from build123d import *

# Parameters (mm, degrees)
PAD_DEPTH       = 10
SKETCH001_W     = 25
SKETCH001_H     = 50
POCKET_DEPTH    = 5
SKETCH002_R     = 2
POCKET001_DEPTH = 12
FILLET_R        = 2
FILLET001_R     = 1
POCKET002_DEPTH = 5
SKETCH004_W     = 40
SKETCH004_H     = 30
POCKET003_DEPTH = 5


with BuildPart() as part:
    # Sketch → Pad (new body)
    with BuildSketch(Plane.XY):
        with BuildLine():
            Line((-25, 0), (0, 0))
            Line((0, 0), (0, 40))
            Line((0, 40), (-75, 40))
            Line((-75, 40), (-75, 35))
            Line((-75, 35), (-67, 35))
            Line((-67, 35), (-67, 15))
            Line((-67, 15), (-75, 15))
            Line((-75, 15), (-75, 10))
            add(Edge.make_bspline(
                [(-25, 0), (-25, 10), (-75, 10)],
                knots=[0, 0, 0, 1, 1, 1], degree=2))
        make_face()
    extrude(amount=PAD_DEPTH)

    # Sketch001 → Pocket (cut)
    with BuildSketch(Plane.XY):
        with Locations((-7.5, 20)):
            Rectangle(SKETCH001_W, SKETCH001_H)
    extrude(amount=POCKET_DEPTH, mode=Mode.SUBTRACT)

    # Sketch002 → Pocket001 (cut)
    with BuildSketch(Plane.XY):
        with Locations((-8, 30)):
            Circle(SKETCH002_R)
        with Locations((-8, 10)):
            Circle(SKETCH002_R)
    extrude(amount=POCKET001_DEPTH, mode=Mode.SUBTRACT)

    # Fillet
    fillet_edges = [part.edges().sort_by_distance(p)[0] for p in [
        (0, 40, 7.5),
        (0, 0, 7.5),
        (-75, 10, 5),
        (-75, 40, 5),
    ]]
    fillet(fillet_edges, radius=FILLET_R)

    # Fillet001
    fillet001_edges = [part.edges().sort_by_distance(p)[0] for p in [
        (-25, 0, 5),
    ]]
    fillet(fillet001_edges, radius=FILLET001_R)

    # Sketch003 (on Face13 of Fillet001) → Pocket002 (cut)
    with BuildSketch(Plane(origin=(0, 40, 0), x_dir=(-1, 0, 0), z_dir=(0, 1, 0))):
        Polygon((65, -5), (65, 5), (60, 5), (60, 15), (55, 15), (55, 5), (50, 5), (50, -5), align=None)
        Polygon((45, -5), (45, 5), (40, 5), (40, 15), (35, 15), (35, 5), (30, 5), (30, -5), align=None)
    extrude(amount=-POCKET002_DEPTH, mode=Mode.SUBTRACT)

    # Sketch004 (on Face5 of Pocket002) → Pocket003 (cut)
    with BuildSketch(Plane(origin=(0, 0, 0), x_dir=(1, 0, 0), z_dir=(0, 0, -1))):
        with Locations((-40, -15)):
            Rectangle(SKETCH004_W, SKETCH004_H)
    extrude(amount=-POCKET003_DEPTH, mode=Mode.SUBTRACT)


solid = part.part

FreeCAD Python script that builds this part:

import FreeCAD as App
import Part
import Sketcher

V = App.Vector


def edges_at(feature, points):
    """Names of the edges that pass closest to the given points."""
    edges = feature.Shape.Edges
    near = lambda p: min(range(len(edges)), key=lambda i: edges[i].distToShape(Part.Vertex(*p))[0])
    return sorted({f"Edge{near(p) + 1}" for p in points})


def add_polygon(sketch, points):
    """Adds a closed chain of lines whose ends are joined by coincident constraints."""
    first, n = sketch.GeometryCount, len(points)
    for a, b in zip(points, points[1:] + points[:1]):
        sketch.addGeometry(Part.LineSegment(App.Vector(*a, 0), App.Vector(*b, 0)), False)
    for i in range(n):
        sketch.addConstraint(Sketcher.Constraint("Coincident", first + i, 2, first + (i + 1) % n, 1))

doc = App.newDocument("Part")
body = doc.addObject("PartDesign::Body", "Body")

sketch1 = doc.addObject("Sketcher::SketchObject", "Sketch")
body.addObject(sketch1)
sketch1.AttachmentSupport = (doc.XY_Plane, [""])
sketch1.MapMode = "FlatFace"
sketch1.addGeometry(Part.LineSegment(V(-25, 0, 0), V(0, 0, 0)), False)
sketch1.addGeometry(Part.LineSegment(V(0, 0, 0), V(0, 40, 0)), False)
sketch1.addGeometry(Part.LineSegment(V(0, 40, 0), V(-75, 40, 0)), False)
sketch1.addGeometry(Part.LineSegment(V(-75, 40, 0), V(-75, 35, 0)), False)
sketch1.addGeometry(Part.LineSegment(V(-75, 35, 0), V(-67, 35, 0)), False)
sketch1.addGeometry(Part.LineSegment(V(-67, 35, 0), V(-67, 15, 0)), False)
sketch1.addGeometry(Part.LineSegment(V(-67, 15, 0), V(-75, 15, 0)), False)
sketch1.addGeometry(Part.LineSegment(V(-75, 15, 0), V(-75, 10, 0)), False)
sketch1.addGeometry(Part.BSplineCurve([V(-25, 0, 0), V(-25, 10, 0), V(-75, 10, 0)], [3, 3], [0, 1], False, 2, [1, 1, 1], False), False)
sketch1.addConstraint(Sketcher.Constraint("Block", 8))
sketch1.addConstraint(Sketcher.Constraint("Coincident", 0, 2, 1, 1))
sketch1.addConstraint(Sketcher.Constraint("Coincident", 1, 2, 2, 1))
sketch1.addConstraint(Sketcher.Constraint("Coincident", 2, 2, 3, 1))
sketch1.addConstraint(Sketcher.Constraint("Coincident", 3, 2, 4, 1))
sketch1.addConstraint(Sketcher.Constraint("Coincident", 4, 2, 5, 1))
sketch1.addConstraint(Sketcher.Constraint("Coincident", 5, 2, 6, 1))
sketch1.addConstraint(Sketcher.Constraint("Coincident", 6, 2, 7, 1))
sketch1.addConstraint(Sketcher.Constraint("Coincident", 7, 2, 8, 2))
sketch1.addConstraint(Sketcher.Constraint("Coincident", 8, 1, 0, 1))
sketch1.addConstraint(Sketcher.Constraint("Horizontal", 0))
sketch1.addConstraint(Sketcher.Constraint("Vertical", 1))
sketch1.addConstraint(Sketcher.Constraint("Horizontal", 2))
sketch1.addConstraint(Sketcher.Constraint("Vertical", 3))
sketch1.addConstraint(Sketcher.Constraint("Horizontal", 4))
sketch1.addConstraint(Sketcher.Constraint("Vertical", 5))
sketch1.addConstraint(Sketcher.Constraint("Horizontal", 6))
sketch1.addConstraint(Sketcher.Constraint("Vertical", 7))
sketch1.addConstraint(Sketcher.Constraint("PointOnObject", 1, 2, -2))
sketch1.addConstraint(Sketcher.Constraint("Vertical", 3, 2, 6, 2))
sketch1.addConstraint(Sketcher.Constraint("Equal", 3, 7))
sketch1.addConstraint(Sketcher.Constraint("DistanceX", 4, 1, 4, 2, 8.0))
sketch1.addConstraint(Sketcher.Constraint("DistanceY", 1, 1, 1, 2, 40.0))
sketch1.addConstraint(Sketcher.Constraint("DistanceY", 3, 2, 3, 1, 5.0))
pad1 = doc.addObject("PartDesign::Pad", "Pad")
body.addObject(pad1)
pad1.Profile = sketch1
pad1.Length = 10

sketch2 = doc.addObject("Sketcher::SketchObject", "Sketch001")
body.addObject(sketch2)
sketch2.AttachmentSupport = (doc.XY_Plane, [""])
sketch2.MapMode = "FlatFace"
add_polygon(sketch2, [(-20, 45), (-20, -5), (5, -5), (5, 45)])
sketch2.addConstraint(Sketcher.Constraint("Vertical", 0))
sketch2.addConstraint(Sketcher.Constraint("Horizontal", 1))
sketch2.addConstraint(Sketcher.Constraint("Vertical", 2))
sketch2.addConstraint(Sketcher.Constraint("Horizontal", 3))
sketch2.addConstraint(Sketcher.Constraint("DistanceX", 1, 1, 1, 2, 25.0))
sketch2.addConstraint(Sketcher.Constraint("DistanceY", 0, 2, 0, 1, 50.0))
sketch2.addConstraint(Sketcher.Constraint("DistanceX", 0, 2, -1, 1, 20.0))
sketch2.addConstraint(Sketcher.Constraint("DistanceY", 0, 2, -1, 1, 5.0))
pocket1 = doc.addObject("PartDesign::Pocket", "Pocket")
body.addObject(pocket1)
pocket1.Profile = sketch2
pocket1.Length = 5
pocket1.Reversed = True

sketch3 = doc.addObject("Sketcher::SketchObject", "Sketch002")
body.addObject(sketch3)
sketch3.AttachmentSupport = (doc.XY_Plane, [""])
sketch3.MapMode = "FlatFace"
sketch3.addGeometry(Part.Circle(V(-8, 30, 0), V(0, 0, 1), 2), False)
sketch3.addGeometry(Part.Circle(V(-8, 10, 0), V(0, 0, 1), 2), False)
sketch3.addConstraint(Sketcher.Constraint("Equal", 0, 1))
sketch3.addConstraint(Sketcher.Constraint("Vertical", 0, 3, 1, 3))
sketch3.addConstraint(Sketcher.Constraint("Diameter", 0, 4.0))
sketch3.addConstraint(Sketcher.Constraint("DistanceX", 0, 3, -1, 1, 8.0))
sketch3.addConstraint(Sketcher.Constraint("DistanceY", -1, 1, 0, 3, 30.0))
sketch3.addConstraint(Sketcher.Constraint("DistanceY", -1, 1, 1, 3, 10.0))
pocket2 = doc.addObject("PartDesign::Pocket", "Pocket001")
body.addObject(pocket2)
pocket2.Profile = sketch3
pocket2.Length = 12
pocket2.Reversed = True
doc.recompute()

fillet = doc.addObject("PartDesign::Fillet", "Fillet")
body.addObject(fillet)
fillet.Base = (pocket2, edges_at(pocket2, [
    (0, 40, 7.5),
    (0, 0, 7.5),
    (-75, 10, 5),
    (-75, 40, 5),
]))
fillet.Radius = 2
doc.recompute()

fillet2 = doc.addObject("PartDesign::Fillet", "Fillet001")
body.addObject(fillet2)
fillet2.Base = (fillet, edges_at(fillet, [(-25, 0, 5)]))
fillet2.Radius = 1

sketch4 = doc.addObject("Sketcher::SketchObject", "Sketch003")
body.addObject(sketch4)
sketch4.AttachmentSupport = (doc.XZ_Plane, [""])
sketch4.MapMode = "FlatFace"
sketch4.AttachmentOffset = App.Placement(V(0, 0, -40), App.Rotation())
add_polygon(sketch4, [(-65, -5), (-65, 5), (-60, 5), (-60, 15), (-55, 15), (-55, 5), (-50, 5), (-50, -5)])
add_polygon(sketch4, [(-45, -5), (-45, 5), (-40, 5), (-40, 15), (-35, 15), (-35, 5), (-30, 5), (-30, -5)])
sketch4.addConstraint(Sketcher.Constraint("Vertical", 0))
sketch4.addConstraint(Sketcher.Constraint("Horizontal", 1))
sketch4.addConstraint(Sketcher.Constraint("Vertical", 2))
sketch4.addConstraint(Sketcher.Constraint("Horizontal", 3))
sketch4.addConstraint(Sketcher.Constraint("Vertical", 4))
sketch4.addConstraint(Sketcher.Constraint("Horizontal", 5))
sketch4.addConstraint(Sketcher.Constraint("Vertical", 6))
sketch4.addConstraint(Sketcher.Constraint("Horizontal", 7))
sketch4.addConstraint(Sketcher.Constraint("Vertical", 8))
sketch4.addConstraint(Sketcher.Constraint("Horizontal", 9))
sketch4.addConstraint(Sketcher.Constraint("Vertical", 10))
sketch4.addConstraint(Sketcher.Constraint("Horizontal", 11))
sketch4.addConstraint(Sketcher.Constraint("Vertical", 12))
sketch4.addConstraint(Sketcher.Constraint("Horizontal", 13))
sketch4.addConstraint(Sketcher.Constraint("Vertical", 14))
sketch4.addConstraint(Sketcher.Constraint("Horizontal", 15))
sketch4.addConstraint(Sketcher.Constraint("Horizontal", 1, 2, 4, 2))
sketch4.addConstraint(Sketcher.Constraint("Horizontal", 5, 2, 8, 2))
sketch4.addConstraint(Sketcher.Constraint("Horizontal", 3, 2, 10, 2))
sketch4.addConstraint(Sketcher.Constraint("Horizontal", 9, 2, 12, 2))
sketch4.addConstraint(Sketcher.Constraint("Horizontal", 7, 2, 14, 2))
sketch4.addConstraint(Sketcher.Constraint("Equal", 1, 3))
sketch4.addConstraint(Sketcher.Constraint("Equal", 3, 5))
sketch4.addConstraint(Sketcher.Constraint("Equal", 5, 9))
sketch4.addConstraint(Sketcher.Constraint("Equal", 9, 11))
sketch4.addConstraint(Sketcher.Constraint("Equal", 11, 13))
sketch4.addConstraint(Sketcher.Constraint("Equal", 0, 2))
sketch4.addConstraint(Sketcher.Constraint("DistanceX", 1, 1, 1, 2, 5.0))
sketch4.addConstraint(Sketcher.Constraint("DistanceY", 0, 1, 0, 2, 10.0))
sketch4.addConstraint(Sketcher.Constraint("DistanceX", 0, 2, -1, 1, 65.0))
sketch4.addConstraint(Sketcher.Constraint("DistanceY", -1, 1, 0, 2, 5.0))
sketch4.addConstraint(Sketcher.Constraint("DistanceX", 8, 2, -1, 1, 45.0))
pocket3 = doc.addObject("PartDesign::Pocket", "Pocket002")
body.addObject(pocket3)
pocket3.Profile = sketch4
pocket3.Length = 5
pocket3.Reversed = True

sketch5 = doc.addObject("Sketcher::SketchObject", "Sketch004")
body.addObject(sketch5)
sketch5.AttachmentSupport = (doc.XY_Plane, [""])
sketch5.MapMode = "FlatFace"
add_polygon(sketch5, [(-60, 0), (-60, 30), (-20, 30), (-20, 0)])
sketch5.addConstraint(Sketcher.Constraint("Vertical", 0))
sketch5.addConstraint(Sketcher.Constraint("Horizontal", 1))
sketch5.addConstraint(Sketcher.Constraint("Vertical", 2))
sketch5.addConstraint(Sketcher.Constraint("Horizontal", 3))
sketch5.addConstraint(Sketcher.Constraint("PointOnObject", 2, 2, -1))
sketch5.addConstraint(Sketcher.Constraint("DistanceX", 1, 1, 1, 2, 40.0))
sketch5.addConstraint(Sketcher.Constraint("DistanceY", 0, 1, 0, 2, 30.0))
sketch5.addConstraint(Sketcher.Constraint("DistanceX", 0, 2, -1, 1, 60.0))
pocket4 = doc.addObject("PartDesign::Pocket", "Pocket003")
body.addObject(pocket4)
pocket4.Profile = sketch5
pocket4.Length = 5
pocket4.Reversed = True

doc.recompute()
